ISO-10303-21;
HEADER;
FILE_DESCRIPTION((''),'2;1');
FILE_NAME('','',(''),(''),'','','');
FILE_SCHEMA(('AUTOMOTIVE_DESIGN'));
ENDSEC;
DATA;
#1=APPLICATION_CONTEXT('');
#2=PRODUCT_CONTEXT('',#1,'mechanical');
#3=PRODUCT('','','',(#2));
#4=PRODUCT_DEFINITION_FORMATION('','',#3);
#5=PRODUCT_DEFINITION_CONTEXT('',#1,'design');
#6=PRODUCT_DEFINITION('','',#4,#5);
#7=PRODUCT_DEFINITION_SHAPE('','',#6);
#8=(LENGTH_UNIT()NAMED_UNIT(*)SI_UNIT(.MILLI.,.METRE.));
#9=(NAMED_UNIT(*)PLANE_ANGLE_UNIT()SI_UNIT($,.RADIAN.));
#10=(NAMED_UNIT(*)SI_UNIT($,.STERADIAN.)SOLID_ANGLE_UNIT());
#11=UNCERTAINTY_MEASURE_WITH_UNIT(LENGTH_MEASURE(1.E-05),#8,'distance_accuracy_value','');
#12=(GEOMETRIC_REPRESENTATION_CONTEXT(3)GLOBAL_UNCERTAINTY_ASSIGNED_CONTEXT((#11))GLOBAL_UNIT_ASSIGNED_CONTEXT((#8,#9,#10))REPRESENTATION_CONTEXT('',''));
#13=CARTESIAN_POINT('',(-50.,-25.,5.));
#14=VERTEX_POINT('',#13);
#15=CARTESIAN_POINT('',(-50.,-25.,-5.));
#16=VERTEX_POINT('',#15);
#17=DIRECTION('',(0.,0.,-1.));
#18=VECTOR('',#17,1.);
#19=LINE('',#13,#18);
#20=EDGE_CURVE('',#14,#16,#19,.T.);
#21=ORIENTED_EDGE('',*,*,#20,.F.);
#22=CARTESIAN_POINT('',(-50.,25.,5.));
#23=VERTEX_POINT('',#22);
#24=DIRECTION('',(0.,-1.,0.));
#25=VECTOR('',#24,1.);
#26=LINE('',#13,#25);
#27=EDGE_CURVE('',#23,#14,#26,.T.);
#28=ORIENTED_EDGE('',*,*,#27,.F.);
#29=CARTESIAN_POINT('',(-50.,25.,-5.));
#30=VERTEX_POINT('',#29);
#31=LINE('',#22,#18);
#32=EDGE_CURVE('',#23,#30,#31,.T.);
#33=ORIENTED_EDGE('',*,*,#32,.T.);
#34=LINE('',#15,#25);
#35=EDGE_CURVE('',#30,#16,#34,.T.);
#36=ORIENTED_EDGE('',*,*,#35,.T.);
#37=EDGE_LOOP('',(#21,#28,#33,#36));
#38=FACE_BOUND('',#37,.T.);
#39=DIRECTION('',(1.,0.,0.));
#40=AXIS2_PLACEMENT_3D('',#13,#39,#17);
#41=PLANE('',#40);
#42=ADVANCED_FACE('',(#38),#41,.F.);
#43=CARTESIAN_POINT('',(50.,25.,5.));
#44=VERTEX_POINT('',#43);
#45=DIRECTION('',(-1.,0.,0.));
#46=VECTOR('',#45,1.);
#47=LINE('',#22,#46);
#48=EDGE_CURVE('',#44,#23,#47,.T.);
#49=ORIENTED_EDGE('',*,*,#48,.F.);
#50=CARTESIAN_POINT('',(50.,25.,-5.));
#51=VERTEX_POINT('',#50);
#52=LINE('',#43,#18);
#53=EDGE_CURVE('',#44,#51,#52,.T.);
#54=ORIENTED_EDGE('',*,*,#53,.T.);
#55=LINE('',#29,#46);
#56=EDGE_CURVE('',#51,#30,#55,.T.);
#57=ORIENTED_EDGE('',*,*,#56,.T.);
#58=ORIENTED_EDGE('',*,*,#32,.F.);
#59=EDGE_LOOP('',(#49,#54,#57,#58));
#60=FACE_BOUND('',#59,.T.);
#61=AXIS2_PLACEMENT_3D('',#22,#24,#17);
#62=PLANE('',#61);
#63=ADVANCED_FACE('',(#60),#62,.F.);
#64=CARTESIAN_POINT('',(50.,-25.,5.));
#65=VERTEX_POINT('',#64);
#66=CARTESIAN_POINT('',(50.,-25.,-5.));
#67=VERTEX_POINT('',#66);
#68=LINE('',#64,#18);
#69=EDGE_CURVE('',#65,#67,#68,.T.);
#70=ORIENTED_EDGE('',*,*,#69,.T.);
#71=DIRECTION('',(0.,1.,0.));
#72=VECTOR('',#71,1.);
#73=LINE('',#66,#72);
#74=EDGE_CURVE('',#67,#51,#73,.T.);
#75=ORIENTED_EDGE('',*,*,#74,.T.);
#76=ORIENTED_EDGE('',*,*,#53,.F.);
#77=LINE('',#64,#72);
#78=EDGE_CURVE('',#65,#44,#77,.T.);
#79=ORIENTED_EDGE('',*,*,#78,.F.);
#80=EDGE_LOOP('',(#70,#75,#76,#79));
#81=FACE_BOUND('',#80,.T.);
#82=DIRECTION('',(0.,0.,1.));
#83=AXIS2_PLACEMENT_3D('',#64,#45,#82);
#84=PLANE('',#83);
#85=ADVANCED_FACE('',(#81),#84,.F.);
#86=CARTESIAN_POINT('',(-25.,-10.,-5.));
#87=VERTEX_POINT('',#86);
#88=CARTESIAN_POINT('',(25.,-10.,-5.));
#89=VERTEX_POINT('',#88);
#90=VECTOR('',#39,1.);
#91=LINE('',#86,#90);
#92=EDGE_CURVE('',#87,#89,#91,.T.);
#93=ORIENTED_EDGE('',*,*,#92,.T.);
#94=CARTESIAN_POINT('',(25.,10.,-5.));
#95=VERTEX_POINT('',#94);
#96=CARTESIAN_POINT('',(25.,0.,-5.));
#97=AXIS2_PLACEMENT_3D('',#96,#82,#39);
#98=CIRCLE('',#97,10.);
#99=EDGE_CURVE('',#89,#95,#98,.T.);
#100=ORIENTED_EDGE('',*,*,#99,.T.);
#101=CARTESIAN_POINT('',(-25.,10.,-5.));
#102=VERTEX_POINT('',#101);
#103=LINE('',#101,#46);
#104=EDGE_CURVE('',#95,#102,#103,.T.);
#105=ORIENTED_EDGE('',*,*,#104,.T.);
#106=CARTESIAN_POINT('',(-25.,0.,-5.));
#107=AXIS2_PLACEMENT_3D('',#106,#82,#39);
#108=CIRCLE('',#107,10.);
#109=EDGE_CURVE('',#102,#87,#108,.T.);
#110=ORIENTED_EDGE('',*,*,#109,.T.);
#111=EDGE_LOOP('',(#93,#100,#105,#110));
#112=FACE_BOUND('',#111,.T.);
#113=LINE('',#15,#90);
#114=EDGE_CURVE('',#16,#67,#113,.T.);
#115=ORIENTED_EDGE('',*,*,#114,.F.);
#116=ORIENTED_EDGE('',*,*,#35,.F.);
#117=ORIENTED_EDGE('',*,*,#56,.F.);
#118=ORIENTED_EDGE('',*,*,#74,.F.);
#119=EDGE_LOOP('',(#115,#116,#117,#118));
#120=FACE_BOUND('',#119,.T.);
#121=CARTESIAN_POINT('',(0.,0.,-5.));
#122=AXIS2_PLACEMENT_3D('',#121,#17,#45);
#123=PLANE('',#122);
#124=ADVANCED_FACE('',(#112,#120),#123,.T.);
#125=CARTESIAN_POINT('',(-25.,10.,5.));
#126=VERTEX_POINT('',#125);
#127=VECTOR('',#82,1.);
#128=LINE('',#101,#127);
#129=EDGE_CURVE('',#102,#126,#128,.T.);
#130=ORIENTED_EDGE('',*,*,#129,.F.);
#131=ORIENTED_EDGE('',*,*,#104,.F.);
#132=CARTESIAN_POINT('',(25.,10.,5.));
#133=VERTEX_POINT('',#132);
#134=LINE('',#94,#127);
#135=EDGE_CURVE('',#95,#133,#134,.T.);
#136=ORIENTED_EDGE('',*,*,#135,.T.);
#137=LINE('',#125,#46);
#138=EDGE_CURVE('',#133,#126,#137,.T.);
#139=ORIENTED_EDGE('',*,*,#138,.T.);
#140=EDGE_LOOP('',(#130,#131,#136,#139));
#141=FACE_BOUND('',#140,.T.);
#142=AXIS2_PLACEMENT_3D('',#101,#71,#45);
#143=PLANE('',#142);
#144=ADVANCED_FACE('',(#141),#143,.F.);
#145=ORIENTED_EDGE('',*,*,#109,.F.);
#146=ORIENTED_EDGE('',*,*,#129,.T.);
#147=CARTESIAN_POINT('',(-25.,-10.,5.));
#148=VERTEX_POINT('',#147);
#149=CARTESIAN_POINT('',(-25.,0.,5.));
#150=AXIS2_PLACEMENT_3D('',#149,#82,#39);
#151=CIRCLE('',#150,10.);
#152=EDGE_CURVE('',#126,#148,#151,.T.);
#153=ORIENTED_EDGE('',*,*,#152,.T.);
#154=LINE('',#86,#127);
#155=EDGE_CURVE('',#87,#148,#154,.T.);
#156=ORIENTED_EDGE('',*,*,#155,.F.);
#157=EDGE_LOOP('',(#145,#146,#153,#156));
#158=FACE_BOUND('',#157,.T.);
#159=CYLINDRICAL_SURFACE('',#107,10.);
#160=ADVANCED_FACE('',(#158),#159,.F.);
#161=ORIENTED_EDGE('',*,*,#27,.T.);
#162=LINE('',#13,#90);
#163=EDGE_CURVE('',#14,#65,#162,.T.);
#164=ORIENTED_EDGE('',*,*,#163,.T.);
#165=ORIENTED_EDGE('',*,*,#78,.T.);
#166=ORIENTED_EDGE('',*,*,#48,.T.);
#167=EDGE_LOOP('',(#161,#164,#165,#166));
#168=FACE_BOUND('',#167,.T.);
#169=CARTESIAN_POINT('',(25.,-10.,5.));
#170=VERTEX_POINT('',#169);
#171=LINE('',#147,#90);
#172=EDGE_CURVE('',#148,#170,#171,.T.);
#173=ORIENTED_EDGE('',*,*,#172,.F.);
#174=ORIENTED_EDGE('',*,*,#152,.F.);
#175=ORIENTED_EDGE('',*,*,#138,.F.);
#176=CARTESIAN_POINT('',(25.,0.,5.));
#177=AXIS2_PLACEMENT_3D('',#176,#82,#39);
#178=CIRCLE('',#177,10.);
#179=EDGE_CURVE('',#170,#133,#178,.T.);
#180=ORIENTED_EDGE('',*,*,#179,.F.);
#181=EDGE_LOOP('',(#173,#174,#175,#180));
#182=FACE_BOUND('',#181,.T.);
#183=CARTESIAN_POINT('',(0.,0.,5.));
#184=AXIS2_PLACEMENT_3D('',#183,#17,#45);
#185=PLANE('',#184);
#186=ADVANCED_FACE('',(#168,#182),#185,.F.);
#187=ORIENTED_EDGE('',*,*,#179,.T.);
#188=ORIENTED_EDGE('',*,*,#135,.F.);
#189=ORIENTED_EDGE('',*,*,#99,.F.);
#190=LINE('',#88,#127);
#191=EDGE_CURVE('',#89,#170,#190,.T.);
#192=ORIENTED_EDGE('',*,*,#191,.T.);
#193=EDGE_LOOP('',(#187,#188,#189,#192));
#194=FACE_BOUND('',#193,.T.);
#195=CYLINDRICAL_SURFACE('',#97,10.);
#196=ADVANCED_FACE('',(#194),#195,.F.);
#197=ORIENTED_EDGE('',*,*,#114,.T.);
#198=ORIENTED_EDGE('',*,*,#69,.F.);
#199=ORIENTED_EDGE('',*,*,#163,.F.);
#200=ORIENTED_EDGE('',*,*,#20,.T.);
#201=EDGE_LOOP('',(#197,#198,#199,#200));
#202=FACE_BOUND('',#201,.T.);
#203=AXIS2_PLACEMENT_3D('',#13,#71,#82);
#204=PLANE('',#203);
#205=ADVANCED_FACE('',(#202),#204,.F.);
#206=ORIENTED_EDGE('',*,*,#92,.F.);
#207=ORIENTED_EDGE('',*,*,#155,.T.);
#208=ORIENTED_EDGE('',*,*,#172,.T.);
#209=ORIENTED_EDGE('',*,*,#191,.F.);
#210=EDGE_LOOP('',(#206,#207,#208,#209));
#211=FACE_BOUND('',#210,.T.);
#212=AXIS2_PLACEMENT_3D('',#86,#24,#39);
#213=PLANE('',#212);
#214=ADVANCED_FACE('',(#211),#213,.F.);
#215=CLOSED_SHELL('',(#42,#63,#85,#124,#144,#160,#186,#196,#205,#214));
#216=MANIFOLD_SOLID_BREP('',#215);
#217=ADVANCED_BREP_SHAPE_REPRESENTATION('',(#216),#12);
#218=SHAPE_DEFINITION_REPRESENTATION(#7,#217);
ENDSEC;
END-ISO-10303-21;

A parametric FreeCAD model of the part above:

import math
import FreeCAD as App
import Part
import Sketcher

V = App.Vector


def add_polygon(sketch, points):
    """Adds a closed chain of lines whose ends are joined by coincident constraints."""
    first, n = sketch.GeometryCount, len(points)
    for a, b in zip(points, points[1:] + points[:1]):
        sketch.addGeometry(Part.LineSegment(App.Vector(*a, 0), App.Vector(*b, 0)), False)
    for i in range(n):
        sketch.addConstraint(Sketcher.Constraint("Coincident", first + i, 2, first + (i + 1) % n, 1))

doc = App.newDocument("Part")
body = doc.addObject("PartDesign::Body", "Body")

# Sketch on XY plane
sketch1 = body.newObject("Sketcher::SketchObject", "Sketch")
sketch1.AttachmentSupport = (doc.getObject("XY_Plane"), [""])
sketch1.MapMode = "FlatFace"
add_polygon(sketch1, [(-50, 25), (-50, -25), (50, -25), (50, 25)])  # lines 0-3
sketch1.addConstraint(Sketcher.Constraint("Vertical", 0))
sketch1.addConstraint(Sketcher.Constraint("Horizontal", 1))
sketch1.addConstraint(Sketcher.Constraint("Vertical", 2))
sketch1.addConstraint(Sketcher.Constraint("Horizontal", 3))
sketch1.addConstraint(Sketcher.Constraint("Symmetric", 0, 2, 2, 2, -1, 1))
sketch1.addConstraint(Sketcher.Constraint("DistanceX", 1, 1, 1, 2, 100.0))
sketch1.addConstraint(Sketcher.Constraint("DistanceY", 0, 2, 0, 1, 50.0))
pad1 = body.newObject("PartDesign::Pad", "Pad")
pad1.Profile = sketch1
pad1.Length = 10
pad1.Midplane = True

# Sketch on XY plane
sketch2 = body.newObject("Sketcher::SketchObject", "Sketch001")
sketch2.AttachmentSupport = (doc.getObject("XY_Plane"), [""])
sketch2.MapMode = "FlatFace"
sketch2.addGeometry(Part.LineSegment(V(25, 10, 0), V(-25, 10, 0)), False)
sketch2.addGeometry(Part.ArcOfCircle(Part.Circle(V(-25, 0, 0), V(0, 0, 1), 10), math.radians(90), math.radians(270)), False)
sketch2.addGeometry(Part.LineSegment(V(-25, -10, 0), V(25, -10, 0)), False)
sketch2.addGeometry(Part.ArcOfCircle(Part.Circle(V(25, 0, 0), V(0, 0, 1), 10), math.radians(-90), math.radians(90)), False)
sketch2.addConstraint(Sketcher.Constraint("Tangent", 0, 2, 1, 1))
sketch2.addConstraint(Sketcher.Constraint("Tangent", 1, 2, 2, 1))
sketch2.addConstraint(Sketcher.Constraint("Tangent", 2, 2, 3, 1))
sketch2.addConstraint(Sketcher.Constraint("Tangent", 3, 2, 0, 1))
sketch2.addConstraint(Sketcher.Constraint("Horizontal", 0))
sketch2.addConstraint(Sketcher.Constraint("Horizontal", 2))
sketch2.addConstraint(Sketcher.Constraint("Symmetric", 1, 3, 3, 3, -1, 1))
sketch2.addConstraint(Sketcher.Constraint("Radius", 1, 10.0))
sketch2.addConstraint(Sketcher.Constraint("DistanceX", 0, 2, 0, 1, 50.0))
pocket1 = body.newObject("PartDesign::Pocket", "Pocket")
pocket1.Profile = sketch2
pocket1.Type = "ThroughAll"
pocket1.Midplane = True

doc.recompute()
